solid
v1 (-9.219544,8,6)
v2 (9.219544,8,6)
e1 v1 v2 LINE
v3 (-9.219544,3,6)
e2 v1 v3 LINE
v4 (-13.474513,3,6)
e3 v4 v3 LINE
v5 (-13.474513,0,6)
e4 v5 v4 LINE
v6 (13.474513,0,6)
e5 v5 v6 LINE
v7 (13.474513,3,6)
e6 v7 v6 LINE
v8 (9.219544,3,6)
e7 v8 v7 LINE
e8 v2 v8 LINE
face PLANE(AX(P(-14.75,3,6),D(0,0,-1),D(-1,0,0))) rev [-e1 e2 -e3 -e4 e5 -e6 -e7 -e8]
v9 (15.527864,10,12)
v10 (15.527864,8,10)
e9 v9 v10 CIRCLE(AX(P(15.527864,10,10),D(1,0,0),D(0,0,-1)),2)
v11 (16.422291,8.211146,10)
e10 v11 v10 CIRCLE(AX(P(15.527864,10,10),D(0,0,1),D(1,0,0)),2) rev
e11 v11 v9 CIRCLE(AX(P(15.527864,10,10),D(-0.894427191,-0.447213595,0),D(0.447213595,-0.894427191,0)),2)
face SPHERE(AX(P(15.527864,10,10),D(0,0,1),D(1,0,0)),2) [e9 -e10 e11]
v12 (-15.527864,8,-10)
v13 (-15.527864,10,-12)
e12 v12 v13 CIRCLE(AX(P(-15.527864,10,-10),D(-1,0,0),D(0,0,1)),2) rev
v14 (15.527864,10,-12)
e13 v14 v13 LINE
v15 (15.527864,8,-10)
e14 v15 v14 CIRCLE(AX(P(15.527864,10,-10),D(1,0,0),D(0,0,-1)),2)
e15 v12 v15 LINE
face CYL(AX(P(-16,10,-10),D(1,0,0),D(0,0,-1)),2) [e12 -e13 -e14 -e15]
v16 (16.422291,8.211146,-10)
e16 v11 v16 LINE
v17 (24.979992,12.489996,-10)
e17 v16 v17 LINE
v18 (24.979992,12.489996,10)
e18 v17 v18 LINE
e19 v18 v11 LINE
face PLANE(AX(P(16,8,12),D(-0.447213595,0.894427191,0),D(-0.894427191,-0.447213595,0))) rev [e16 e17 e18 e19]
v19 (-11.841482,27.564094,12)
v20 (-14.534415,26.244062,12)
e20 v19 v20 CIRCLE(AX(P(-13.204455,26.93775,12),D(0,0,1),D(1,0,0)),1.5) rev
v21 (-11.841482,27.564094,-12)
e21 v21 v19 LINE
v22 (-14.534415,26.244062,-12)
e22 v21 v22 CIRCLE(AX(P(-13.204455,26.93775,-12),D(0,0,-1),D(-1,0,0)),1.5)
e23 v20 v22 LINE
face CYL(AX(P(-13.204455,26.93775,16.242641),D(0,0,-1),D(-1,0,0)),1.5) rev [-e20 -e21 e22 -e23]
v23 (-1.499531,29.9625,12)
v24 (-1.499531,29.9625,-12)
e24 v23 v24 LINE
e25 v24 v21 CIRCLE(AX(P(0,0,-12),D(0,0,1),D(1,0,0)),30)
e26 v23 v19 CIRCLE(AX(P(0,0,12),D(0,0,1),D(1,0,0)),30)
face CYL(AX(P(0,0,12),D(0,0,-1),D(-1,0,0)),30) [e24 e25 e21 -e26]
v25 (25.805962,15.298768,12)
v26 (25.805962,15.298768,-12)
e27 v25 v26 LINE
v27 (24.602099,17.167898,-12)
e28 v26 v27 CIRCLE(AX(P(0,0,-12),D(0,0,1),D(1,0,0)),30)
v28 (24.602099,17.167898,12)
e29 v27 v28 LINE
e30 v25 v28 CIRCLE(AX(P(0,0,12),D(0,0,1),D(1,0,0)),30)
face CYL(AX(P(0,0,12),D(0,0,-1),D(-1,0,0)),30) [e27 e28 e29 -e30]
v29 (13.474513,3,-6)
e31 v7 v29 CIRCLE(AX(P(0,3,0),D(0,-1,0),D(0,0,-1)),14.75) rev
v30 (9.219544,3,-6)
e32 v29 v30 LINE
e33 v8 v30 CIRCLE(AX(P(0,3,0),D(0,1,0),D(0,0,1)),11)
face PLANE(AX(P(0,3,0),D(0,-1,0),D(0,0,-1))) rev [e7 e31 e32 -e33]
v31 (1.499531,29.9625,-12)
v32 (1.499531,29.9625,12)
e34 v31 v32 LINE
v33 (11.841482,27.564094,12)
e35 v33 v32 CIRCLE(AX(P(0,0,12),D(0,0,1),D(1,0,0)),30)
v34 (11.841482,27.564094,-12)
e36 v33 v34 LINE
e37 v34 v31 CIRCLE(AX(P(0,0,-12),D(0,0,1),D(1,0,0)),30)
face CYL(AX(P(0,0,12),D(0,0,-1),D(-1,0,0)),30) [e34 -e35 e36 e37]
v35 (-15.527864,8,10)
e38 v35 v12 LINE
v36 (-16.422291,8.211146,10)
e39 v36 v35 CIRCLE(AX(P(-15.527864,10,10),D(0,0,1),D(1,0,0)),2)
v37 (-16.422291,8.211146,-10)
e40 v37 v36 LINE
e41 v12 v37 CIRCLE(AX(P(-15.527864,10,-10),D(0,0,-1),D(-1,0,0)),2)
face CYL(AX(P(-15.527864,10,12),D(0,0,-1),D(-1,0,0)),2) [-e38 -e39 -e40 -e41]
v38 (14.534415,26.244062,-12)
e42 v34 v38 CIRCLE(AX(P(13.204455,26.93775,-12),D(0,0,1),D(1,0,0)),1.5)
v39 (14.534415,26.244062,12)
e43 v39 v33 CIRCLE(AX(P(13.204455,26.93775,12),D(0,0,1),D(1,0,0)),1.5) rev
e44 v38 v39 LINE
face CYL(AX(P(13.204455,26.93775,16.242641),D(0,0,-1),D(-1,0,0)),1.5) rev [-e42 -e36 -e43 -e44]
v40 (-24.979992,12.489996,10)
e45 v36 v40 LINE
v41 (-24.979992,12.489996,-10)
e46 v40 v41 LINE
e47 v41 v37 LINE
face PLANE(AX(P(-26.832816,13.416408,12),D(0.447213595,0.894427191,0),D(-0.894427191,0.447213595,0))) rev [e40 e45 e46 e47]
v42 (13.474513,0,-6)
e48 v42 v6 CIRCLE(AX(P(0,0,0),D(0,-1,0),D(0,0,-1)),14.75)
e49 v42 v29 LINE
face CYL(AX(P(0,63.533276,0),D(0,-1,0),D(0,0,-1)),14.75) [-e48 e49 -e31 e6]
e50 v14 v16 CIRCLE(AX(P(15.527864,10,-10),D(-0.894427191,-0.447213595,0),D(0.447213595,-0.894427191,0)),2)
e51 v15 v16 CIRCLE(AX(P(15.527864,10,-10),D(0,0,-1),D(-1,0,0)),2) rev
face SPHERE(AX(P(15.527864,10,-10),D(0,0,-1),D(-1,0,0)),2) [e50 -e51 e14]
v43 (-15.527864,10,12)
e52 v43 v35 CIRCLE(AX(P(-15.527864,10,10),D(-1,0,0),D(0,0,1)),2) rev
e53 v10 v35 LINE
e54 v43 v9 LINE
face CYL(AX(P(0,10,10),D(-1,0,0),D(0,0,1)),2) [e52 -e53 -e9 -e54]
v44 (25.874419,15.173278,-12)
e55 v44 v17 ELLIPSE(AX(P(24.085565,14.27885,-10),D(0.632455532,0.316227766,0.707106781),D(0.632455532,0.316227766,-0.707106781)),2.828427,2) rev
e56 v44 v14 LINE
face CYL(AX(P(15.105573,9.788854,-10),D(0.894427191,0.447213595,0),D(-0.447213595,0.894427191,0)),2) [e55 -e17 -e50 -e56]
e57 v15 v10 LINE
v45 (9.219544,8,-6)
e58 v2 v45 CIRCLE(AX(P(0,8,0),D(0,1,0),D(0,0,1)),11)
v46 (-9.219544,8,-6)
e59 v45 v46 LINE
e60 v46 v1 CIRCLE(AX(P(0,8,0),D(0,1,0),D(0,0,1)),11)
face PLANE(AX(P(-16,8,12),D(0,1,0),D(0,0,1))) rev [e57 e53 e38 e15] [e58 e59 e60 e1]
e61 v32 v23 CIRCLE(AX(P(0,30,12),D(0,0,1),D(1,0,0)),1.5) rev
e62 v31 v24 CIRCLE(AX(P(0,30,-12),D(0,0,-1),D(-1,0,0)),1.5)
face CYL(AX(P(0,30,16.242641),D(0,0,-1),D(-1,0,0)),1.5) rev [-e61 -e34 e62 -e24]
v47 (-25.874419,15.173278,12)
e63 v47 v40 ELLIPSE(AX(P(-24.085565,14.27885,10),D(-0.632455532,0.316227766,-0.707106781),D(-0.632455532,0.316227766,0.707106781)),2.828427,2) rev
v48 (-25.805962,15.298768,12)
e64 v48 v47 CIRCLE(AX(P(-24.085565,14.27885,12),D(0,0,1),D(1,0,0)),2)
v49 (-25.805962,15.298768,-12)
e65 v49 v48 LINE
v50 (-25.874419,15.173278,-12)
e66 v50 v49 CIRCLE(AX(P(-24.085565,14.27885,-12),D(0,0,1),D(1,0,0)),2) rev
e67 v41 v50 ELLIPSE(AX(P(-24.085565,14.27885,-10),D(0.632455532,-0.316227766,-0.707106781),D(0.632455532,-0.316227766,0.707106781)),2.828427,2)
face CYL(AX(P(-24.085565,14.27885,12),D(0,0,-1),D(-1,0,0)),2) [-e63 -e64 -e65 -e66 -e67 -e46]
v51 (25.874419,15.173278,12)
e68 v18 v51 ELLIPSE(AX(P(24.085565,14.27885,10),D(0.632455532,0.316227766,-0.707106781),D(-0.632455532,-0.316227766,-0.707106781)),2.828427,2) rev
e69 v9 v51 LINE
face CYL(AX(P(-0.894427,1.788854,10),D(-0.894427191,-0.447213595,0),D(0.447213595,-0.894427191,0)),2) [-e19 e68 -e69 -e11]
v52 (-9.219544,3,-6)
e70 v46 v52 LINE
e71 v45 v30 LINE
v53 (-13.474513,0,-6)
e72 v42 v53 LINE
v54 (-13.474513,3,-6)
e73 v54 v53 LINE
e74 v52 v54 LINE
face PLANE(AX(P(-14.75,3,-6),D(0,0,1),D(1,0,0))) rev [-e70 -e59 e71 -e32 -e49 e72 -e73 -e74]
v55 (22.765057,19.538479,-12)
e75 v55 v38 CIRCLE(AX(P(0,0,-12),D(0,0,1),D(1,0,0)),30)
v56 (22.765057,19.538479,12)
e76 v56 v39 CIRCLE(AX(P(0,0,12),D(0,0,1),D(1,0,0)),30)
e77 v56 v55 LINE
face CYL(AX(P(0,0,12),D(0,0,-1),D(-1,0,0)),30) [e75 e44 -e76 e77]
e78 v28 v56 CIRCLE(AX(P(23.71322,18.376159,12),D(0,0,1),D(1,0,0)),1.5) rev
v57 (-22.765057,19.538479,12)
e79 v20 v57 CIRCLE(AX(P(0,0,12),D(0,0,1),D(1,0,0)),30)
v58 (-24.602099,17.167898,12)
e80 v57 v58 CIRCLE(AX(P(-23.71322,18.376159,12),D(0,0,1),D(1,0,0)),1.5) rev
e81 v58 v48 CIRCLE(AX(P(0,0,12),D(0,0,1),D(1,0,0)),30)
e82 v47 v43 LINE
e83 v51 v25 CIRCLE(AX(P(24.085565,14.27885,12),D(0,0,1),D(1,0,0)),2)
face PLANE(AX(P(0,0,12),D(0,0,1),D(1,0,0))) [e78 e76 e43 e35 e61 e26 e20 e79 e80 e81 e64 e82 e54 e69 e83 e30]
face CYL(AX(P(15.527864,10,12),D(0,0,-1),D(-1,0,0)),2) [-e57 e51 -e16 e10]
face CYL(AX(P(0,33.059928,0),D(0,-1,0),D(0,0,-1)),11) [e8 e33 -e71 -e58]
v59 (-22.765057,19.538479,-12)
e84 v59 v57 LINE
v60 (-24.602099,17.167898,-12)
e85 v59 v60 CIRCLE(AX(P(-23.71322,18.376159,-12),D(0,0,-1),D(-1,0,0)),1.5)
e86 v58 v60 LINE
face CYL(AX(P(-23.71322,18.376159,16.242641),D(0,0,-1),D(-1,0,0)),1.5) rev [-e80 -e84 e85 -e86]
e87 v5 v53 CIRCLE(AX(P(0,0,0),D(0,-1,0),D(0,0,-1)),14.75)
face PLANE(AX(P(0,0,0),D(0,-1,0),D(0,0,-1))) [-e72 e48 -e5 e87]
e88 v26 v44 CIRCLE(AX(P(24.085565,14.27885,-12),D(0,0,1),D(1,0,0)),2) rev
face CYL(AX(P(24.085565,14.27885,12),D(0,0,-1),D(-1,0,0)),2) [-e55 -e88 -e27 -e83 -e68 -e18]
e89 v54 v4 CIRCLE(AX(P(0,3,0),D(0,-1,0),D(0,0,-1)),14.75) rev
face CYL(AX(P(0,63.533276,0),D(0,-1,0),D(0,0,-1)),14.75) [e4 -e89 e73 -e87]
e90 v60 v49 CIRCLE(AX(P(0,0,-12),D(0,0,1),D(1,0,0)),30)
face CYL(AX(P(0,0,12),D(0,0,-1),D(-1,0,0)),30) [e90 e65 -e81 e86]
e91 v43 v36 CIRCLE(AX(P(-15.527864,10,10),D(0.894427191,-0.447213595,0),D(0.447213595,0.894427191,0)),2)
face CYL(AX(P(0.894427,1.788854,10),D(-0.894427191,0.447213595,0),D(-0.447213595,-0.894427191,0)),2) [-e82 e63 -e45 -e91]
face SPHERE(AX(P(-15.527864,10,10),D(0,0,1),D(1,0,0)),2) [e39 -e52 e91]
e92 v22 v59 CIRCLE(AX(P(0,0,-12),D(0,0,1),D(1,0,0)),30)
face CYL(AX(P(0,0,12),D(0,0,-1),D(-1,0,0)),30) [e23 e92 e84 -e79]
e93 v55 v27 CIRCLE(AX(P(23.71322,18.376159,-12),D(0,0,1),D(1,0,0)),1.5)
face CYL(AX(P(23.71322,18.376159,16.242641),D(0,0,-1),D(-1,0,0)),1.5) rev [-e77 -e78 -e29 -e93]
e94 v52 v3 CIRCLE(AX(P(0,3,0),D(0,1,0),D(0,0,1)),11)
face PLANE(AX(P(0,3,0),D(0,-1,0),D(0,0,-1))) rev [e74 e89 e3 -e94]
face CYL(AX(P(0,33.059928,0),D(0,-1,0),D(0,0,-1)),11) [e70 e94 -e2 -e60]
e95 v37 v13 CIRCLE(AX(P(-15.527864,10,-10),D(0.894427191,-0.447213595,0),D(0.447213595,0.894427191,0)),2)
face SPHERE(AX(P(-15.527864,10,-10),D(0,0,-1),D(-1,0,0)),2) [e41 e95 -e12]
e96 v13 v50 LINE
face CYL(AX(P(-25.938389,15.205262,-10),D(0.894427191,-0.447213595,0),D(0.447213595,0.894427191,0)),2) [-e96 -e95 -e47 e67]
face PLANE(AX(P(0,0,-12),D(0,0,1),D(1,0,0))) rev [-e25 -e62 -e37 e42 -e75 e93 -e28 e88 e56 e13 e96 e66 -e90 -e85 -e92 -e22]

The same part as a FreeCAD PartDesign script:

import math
import FreeCAD as App
import Part
import Sketcher


def edges_at(feature, points):
    """Names of the edges that pass closest to the given points."""
    edges = feature.Shape.Edges
    near = lambda p: min(range(len(edges)), key=lambda i: edges[i].distToShape(Part.Vertex(*p))[0])
    return sorted({f"Edge{near(p) + 1}" for p in points})


def add_polygon(sketch, points):
    """Adds a closed chain of lines whose ends are joined by coincident constraints."""
    first, n = sketch.GeometryCount, len(points)
    for a, b in zip(points, points[1:] + points[:1]):
        sketch.addGeometry(Part.LineSegment(App.Vector(*a, 0), App.Vector(*b, 0)), False)
    for i in range(n):
        sketch.addConstraint(Sketcher.Constraint("Coincident", first + i, 2, first + (i + 1) % n, 1))

doc = App.newDocument("Part")
body = doc.addObject("PartDesign::Body", "Body")

# Sketch on XZ plane
sketch1 = body.newObject("Sketcher::SketchObject", "Sketch")
sketch1.AttachmentSupport = (doc.getObject("XZ_Plane"), [""])
sketch1.MapMode = "FlatFace"
add_polygon(sketch1, [(-15, -6), (-15, 6), (15, 6), (15, -6)])  # lines 0-3
sketch1.addConstraint(Sketcher.Constraint("Vertical", 0))
sketch1.addConstraint(Sketcher.Constraint("Horizontal", 1))
sketch1.addConstraint(Sketcher.Constraint("Vertical", 2))
sketch1.addConstraint(Sketcher.Constraint("Horizontal", 3))
sketch1.addConstraint(Sketcher.Constraint("Symmetric", 0, 2, 2, 2, -1, 1))
sketch1.addConstraint(Sketcher.Constraint("DistanceY", 0, 1, 0, 2, 12.0))
sketch1.addConstraint(Sketcher.Constraint("DistanceX", 1, 1, 1, 2, 29.5))
pad1 = body.newObject("PartDesign::Pad", "Pad")
pad1.Profile = sketch1
pad1.Length = 3
pad1.Reversed = True
body2 = doc.addObject("PartDesign::Body", "Body001")

# Sketch on XY plane
sketch2 = body2.newObject("Sketcher::SketchObject", "Sketch001")
sketch2.AttachmentSupport = (doc.getObject("XY_Plane001"), [""])
sketch2.MapMode = "FlatFace"
sketch2.addGeometry(Part.LineSegment(App.Vector(-27, 13, 0), App.Vector(-16, 8, 0)), False)
sketch2.addGeometry(Part.LineSegment(App.Vector(-16, 8, 0), App.Vector(16, 8, 0)), False)
sketch2.addGeometry(Part.LineSegment(App.Vector(16, 8, 0), App.Vector(27, 13, 0)), False)
sketch2.addGeometry(Part.ArcOfCircle(Part.Circle(App.Vector(0, 0, 0), App.Vector(0, 0, 1), 30), math.radians(27), math.radians(153)), False)
sketch2.addConstraint(Sketcher.Constraint("Coincident", 0, 2, 1, 1))
sketch2.addConstraint(Sketcher.Constraint("Coincident", 1, 2, 2, 1))
sketch2.addConstraint(Sketcher.Constraint("Coincident", 2, 2, 3, 1))
sketch2.addConstraint(Sketcher.Constraint("Coincident", 3, 2, 0, 1))
sketch2.addConstraint(Sketcher.Constraint("Horizontal", 1))
sketch2.addConstraint(Sketcher.Constraint("Coincident", 3, 3, -1, 1))
sketch2.addConstraint(Sketcher.Constraint("Horizontal", 2, 2, 3, 2))
sketch2.addConstraint(Sketcher.Constraint("Equal", 0, 2))
sketch2.addConstraint(Sketcher.Constraint("Radius", 3, 30.0))
sketch2.addConstraint(Sketcher.Constraint("DistanceX", 1, 1, 1, 2, 32.0))
sketch2.addConstraint(Sketcher.Constraint("DistanceY", -1, 1, 0, 2, 8.0))
sketch2.addConstraint(Sketcher.Constraint("DistanceX", 3, 2, 2, 2, 53.665631))
pad2 = body2.newObject("PartDesign::Pad", "Pad001")
pad2.Profile = sketch2
pad2.Length = 24
pad2.Midplane = True
body.AllowCompound = True
doc.recompute()

boolean = body.newObject("PartDesign::Boolean", "Boolean")
boolean.Type = "Fuse"
boolean.addObjects([body2])

# Sketch on XZ plane
sketch3 = body.newObject("Sketcher::SketchObject", "Sketch002")
sketch3.AttachmentSupport = (doc.getObject("XZ_Plane"), [""])
sketch3.MapMode = "FlatFace"
sketch3.AttachmentOffset = App.Placement(App.Vector(0, 0, -3), App.Rotation())
sketch3.addGeometry(Part.LineSegment(App.Vector(-9, 6, 0), App.Vector(9, 6, 0)), False)
sketch3.addGeometry(Part.ArcOfCircle(Part.Circle(App.Vector(0, 0, 0), App.Vector(0, 0, 1), 11), math.radians(-33), math.radians(33)), False)
sketch3.addGeometry(Part.LineSegment(App.Vector(9, -6, 0), App.Vector(-9, -6, 0)), False)
sketch3.addGeometry(Part.ArcOfCircle(Part.Circle(App.Vector(0, 0, 0), App.Vector(0, 0, 1), 11), math.radians(147), math.radians(213)), False)
sketch3.addConstraint(Sketcher.Constraint("Coincident", 0, 2, 1, 2))
sketch3.addConstraint(Sketcher.Constraint("Coincident", 1, 1, 2, 1))
sketch3.addConstraint(Sketcher.Constraint("Coincident", 2, 2, 3, 2))
sketch3.addConstraint(Sketcher.Constraint("Coincident", 3, 1, 0, 1))
sketch3.addConstraint(Sketcher.Constraint("Horizontal", 0))
sketch3.addConstraint(Sketcher.Constraint("Horizontal", 2))
sketch3.addConstraint(Sketcher.Constraint("Coincident", 1, 3, -1, 1))
sketch3.addConstraint(Sketcher.Constraint("Coincident", 3, 3, -1, 1))
sketch3.addConstraint(Sketcher.Constraint("Equal", 1, 3))
sketch3.addConstraint(Sketcher.Constraint("Vertical", 0, 2, 1, 1))
sketch3.addConstraint(Sketcher.Constraint("Radius", 1, 11.0))
sketch3.addConstraint(Sketcher.Constraint("DistanceY", -1, 1, 0, 2, 6.0))
pad3 = body.newObject("PartDesign::Pad", "Pad002")
pad3.Profile = sketch3
pad3.Length = 5
pad3.Reversed = True

# Sketch on XY plane
sketch4 = body.newObject("Sketcher::SketchObject", "Sketch003")
sketch4.AttachmentSupport = (doc.getObject("XY_Plane"), [""])
sketch4.MapMode = "FlatFace"
sketch4.AttachmentOffset = App.Placement(App.Vector(0, 0, -12), App.Rotation())
sketch4.addGeometry(Part.Circle(App.Vector(23.7, 18.4, 0), App.Vector(0, 0, 1), 1.5), False)
sketch4.addGeometry(Part.Circle(App.Vector(13.2, 26.9, 0), App.Vector(0, 0, 1), 1.5), False)
sketch4.addGeometry(Part.Circle(App.Vector(0, 30, 0), App.Vector(0, 0, 1), 1.5), False)
sketch4.addGeometry(Part.Circle(App.Vector(-13.2, 26.9, 0), App.Vector(0, 0, 1), 1.5), False)
sketch4.addGeometry(Part.Circle(App.Vector(-23.7, 18.4, 0), App.Vector(0, 0, 1), 1.5), False)
sketch4.addConstraint(Sketcher.Constraint("Equal", 0, 1))
sketch4.addConstraint(Sketcher.Constraint("Equal", 1, 2))
sketch4.addConstraint(Sketcher.Constraint("Equal", 2, 3))
sketch4.addConstraint(Sketcher.Constraint("Equal", 3, 4))
sketch4.addConstraint(Sketcher.Constraint("Symmetric", 1, 3, 3, 3, -2))
sketch4.addConstraint(Sketcher.Constraint("Symmetric", 0, 3, 4, 3, -2))
sketch4.addConstraint(Sketcher.Constraint("PointOnObject", 2, 3, -2))
sketch4.addConstraint(Sketcher.Constraint("Diameter", 0, 3.0))
sketch4.addConstraint(Sketcher.Constraint("DistanceY", -1, 1, 2, 3, 30.0))
sketch4.addConstraint(Sketcher.Constraint("DistanceX", -1, 1, 0, 3, 23.71322))
sketch4.addConstraint(Sketcher.Constraint("DistanceY", -1, 1, 0, 3, 18.376159))
sketch4.addConstraint(Sketcher.Constraint("DistanceY", -1, 1, 1, 3, 26.93775))
sketch4.addConstraint(Sketcher.Constraint("DistanceX", 3, 3, 1, 3, 26.408909))
pocket1 = body.newObject("PartDesign::Pocket", "Pocket")
pocket1.Profile = sketch4
pocket1.Length = 24
pocket1.Reversed = True
doc.recompute()

fillet = body.newObject("PartDesign::Fillet", "Fillet")
fillet.Base = (pocket1, edges_at(pocket1, [
    (26.833, 13.416, 0),
    (-21.416, 10.708, -12),
    (-26.833, 13.416, 0),
    (0, 8, -12),
    (-16, 8, 0),
    (21.416, 10.708, -12),
    (16, 8, 0),
    (-21.416, 10.708, 12),
    (0, 8, 12),
    (21.416, 10.708, 12),
]))
fillet.Radius = 2

# Sketch on XZ plane
sketch5 = body.newObject("Sketcher::SketchObject", "Sketch004")
sketch5.AttachmentSupport = (doc.getObject("XZ_Plane"), [""])
sketch5.MapMode = "FlatFace"
add_polygon(sketch5, [(-34, 19), (-34, -19), (34, -19), (34, 19)])  # lines 0-3
sketch5.addGeometry(Part.Circle(App.Vector(0, 0, 0), App.Vector(0, 0, 1), 15), False)  # 4
sketch5.addConstraint(Sketcher.Constraint("Vertical", 0))
sketch5.addConstraint(Sketcher.Constraint("Horizontal", 1))
sketch5.addConstraint(Sketcher.Constraint("Vertical", 2))
sketch5.addConstraint(Sketcher.Constraint("Horizontal", 3))
sketch5.addConstraint(Sketcher.Constraint("Coincident", 4, 3, -1, 1))
sketch5.addConstraint(Sketcher.Constraint("Symmetric", 0, 2, 2, 2, -1, 1))
sketch5.addConstraint(Sketcher.Constraint("Diameter", 4, 29.5))
sketch5.addConstraint(Sketcher.Constraint("DistanceX", 1, 1, 1, 2, 67.126))
sketch5.addConstraint(Sketcher.Constraint("DistanceY", 0, 2, 0, 1, 38.954))
pocket2 = body.newObject("PartDesign::Pocket", "Pocket001")
pocket2.Profile = sketch5
pocket2.Length = 3

doc.recompute()
